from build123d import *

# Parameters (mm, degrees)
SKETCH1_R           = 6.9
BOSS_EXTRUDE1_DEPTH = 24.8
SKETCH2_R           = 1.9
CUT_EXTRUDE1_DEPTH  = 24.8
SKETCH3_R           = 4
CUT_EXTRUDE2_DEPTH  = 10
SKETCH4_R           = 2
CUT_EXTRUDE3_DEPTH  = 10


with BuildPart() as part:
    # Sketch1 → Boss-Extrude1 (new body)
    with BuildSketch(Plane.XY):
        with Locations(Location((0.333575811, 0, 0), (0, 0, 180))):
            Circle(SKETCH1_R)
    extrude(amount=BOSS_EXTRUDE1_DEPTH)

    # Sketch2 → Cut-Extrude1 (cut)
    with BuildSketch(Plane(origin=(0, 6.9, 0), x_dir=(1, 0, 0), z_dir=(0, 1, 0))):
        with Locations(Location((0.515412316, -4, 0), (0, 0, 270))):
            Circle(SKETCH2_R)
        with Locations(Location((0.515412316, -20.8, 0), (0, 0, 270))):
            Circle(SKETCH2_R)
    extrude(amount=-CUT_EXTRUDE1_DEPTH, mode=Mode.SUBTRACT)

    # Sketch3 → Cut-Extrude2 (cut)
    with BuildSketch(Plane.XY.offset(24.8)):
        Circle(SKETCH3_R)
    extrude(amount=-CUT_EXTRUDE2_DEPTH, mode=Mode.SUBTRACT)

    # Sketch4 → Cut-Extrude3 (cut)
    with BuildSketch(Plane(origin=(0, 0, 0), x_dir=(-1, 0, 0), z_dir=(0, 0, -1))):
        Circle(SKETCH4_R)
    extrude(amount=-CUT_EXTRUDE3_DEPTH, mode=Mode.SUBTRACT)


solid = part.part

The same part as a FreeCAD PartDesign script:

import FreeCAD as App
import Part
import Sketcher

V = App.Vector
Q = App.Units.Quantity

doc = App.newDocument("Part")
body = doc.addObject("PartDesign::Body", "Body")

sketch1 = doc.addObject("Sketcher::SketchObject", "Sketch")
body.addObject(sketch1)
sketch1.AttachmentSupport = (doc.XY_Plane, [""])
sketch1.MapMode = "FlatFace"
sketch1.addGeometry(Part.Circle(V(0, 0, 0), V(0, 0, 1), 7), False)
sketch1.addConstraint(Sketcher.Constraint("PointOnObject", 0, 3, -1))
sketch1.addConstraint(Sketcher.Constraint("Diameter", 0, Q("13.8 mm")))
sketch1.addConstraint(Sketcher.Constraint("DistanceX", -1, 1, 0, 3, Q("0.333576 mm")))
pad1 = doc.addObject("PartDesign::Pad", "Pad")
body.addObject(pad1)
pad1.Profile = sketch1
pad1.Length = 24.8

sketch2 = doc.addObject("Sketcher::SketchObject", "Sketch001")
body.addObject(sketch2)
sketch2.AttachmentSupport = (doc.XZ_Plane, [""])
sketch2.MapMode = "FlatFace"
sketch2.AttachmentOffset = App.Placement(V(0, 0, -6.9), App.Rotation())
sketch2.addGeometry(Part.Circle(V(0.5, 4, 0), V(0, 0, 1), 1.9), False)
sketch2.addGeometry(Part.Circle(V(0.5, 20.8, 0), V(0, 0, 1), 1.9), False)
sketch2.addConstraint(Sketcher.Constraint("Equal", 0, 1))
sketch2.addConstraint(Sketcher.Constraint("Vertical", 0, 3, 1, 3))
sketch2.addConstraint(Sketcher.Constraint("Diameter", 0, Q("3.8 mm")))
sketch2.addConstraint(Sketcher.Constraint("DistanceY", -1, 1, 0, 3, Q("4 mm")))
sketch2.addConstraint(Sketcher.Constraint("DistanceY", -1, 1, 1, 3, Q("20.8 mm")))
sketch2.addConstraint(Sketcher.Constraint("DistanceX", -1, 1, 0, 3, Q("0.515412 mm")))
pocket1 = doc.addObject("PartDesign::Pocket", "Pocket")
body.addObject(pocket1)
pocket1.Profile = sketch2
pocket1.Length = 24.8
pocket1.Reversed = True

sketch3 = doc.addObject("Sketcher::SketchObject", "Sketch002")
body.addObject(sketch3)
sketch3.AttachmentSupport = (doc.XY_Plane, [""])
sketch3.MapMode = "FlatFace"
sketch3.AttachmentOffset = App.Placement(V(0, 0, 24.8), App.Rotation())
sketch3.addGeometry(Part.Circle(V(0, 0, 0), V(0, 0, 1), 4), False)
sketch3.addConstraint(Sketcher.Constraint("Coincident", 0, 3, -1, 1))
sketch3.addConstraint(Sketcher.Constraint("Diameter", 0, Q("8 mm")))
pocket2 = doc.addObject("PartDesign::Pocket", "Pocket001")
body.addObject(pocket2)
pocket2.Profile = sketch3
pocket2.Length = 10

sketch4 = doc.addObject("Sketcher::SketchObject", "Sketch003")
body.addObject(sketch4)
sketch4.AttachmentSupport = (doc.XY_Plane, [""])
sketch4.MapMode = "FlatFace"
sketch4.addGeometry(Part.Circle(V(0, 0, 0), V(0, 0, 1), 2), False)
sketch4.addConstraint(Sketcher.Constraint("Coincident", 0, 3, -1, 1))
sketch4.addConstraint(Sketcher.Constraint("Diameter", 0, Q("4 mm")))
pocket3 = doc.addObject("PartDesign::Pocket", "Pocket002")
body.addObject(pocket3)
pocket3.Profile = sketch4
pocket3.Length = 10
pocket3.Reversed = True

doc.recompute()
